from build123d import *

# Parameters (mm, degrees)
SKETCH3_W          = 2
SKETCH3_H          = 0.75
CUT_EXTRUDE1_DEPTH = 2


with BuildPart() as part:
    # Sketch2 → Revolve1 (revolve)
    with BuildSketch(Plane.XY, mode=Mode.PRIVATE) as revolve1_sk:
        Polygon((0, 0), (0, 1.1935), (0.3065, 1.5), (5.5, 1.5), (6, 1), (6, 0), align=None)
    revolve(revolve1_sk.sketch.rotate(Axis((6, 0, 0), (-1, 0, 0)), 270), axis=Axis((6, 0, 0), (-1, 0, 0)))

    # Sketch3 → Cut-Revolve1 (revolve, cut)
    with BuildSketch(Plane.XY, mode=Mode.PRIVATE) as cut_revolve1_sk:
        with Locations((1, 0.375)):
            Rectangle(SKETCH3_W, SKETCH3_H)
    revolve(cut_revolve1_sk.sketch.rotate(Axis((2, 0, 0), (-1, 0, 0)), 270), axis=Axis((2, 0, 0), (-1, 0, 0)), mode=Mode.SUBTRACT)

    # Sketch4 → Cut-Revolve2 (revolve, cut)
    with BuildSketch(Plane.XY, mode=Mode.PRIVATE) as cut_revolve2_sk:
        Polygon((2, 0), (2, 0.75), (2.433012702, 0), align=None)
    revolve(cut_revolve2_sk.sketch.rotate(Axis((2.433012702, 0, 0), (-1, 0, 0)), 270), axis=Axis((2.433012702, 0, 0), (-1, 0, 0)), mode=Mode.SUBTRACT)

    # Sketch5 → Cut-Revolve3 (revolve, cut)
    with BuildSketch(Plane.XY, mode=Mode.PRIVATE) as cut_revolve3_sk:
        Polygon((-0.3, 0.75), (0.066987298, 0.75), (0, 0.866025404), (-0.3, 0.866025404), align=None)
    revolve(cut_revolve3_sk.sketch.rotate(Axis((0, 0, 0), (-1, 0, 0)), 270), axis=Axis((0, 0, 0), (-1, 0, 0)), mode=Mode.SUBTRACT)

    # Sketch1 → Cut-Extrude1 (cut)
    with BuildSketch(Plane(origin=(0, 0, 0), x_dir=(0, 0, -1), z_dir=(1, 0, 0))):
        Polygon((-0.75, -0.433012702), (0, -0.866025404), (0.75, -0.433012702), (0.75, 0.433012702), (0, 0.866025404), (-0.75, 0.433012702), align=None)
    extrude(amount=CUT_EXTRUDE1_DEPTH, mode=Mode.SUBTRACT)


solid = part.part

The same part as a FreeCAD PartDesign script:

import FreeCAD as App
import Part
import Sketcher
Q = App.Units.Quantity

doc = App.newDocument("Part")
body = doc.addObject("PartDesign::Body", "Body")

sketch1 = body.newObject("Sketcher::SketchObject", "Sketch")
sketch1.AttachmentSupport = (doc.getObject("XY_Plane"), [""])
sketch1.MapMode = "FlatFace"
sketch1.addGeometry(Part.LineSegment(App.Vector(0, 1.19, 0), App.Vector(0, 0, 0)), False)
sketch1.addGeometry(Part.LineSegment(App.Vector(0, 0, 0), App.Vector(6, 0, 0)), False)
sketch1.addGeometry(Part.LineSegment(App.Vector(6, 0, 0), App.Vector(6, 1, 0)), False)
sketch1.addGeometry(Part.LineSegment(App.Vector(6, 1, 0), App.Vector(5.5, 1.5, 0)), False)
sketch1.addGeometry(Part.LineSegment(App.Vector(5.5, 1.5, 0), App.Vector(0.31, 1.5, 0)), False)
sketch1.addGeometry(Part.LineSegment(App.Vector(0.31, 1.5, 0), App.Vector(0, 1.19, 0)), False)
sketch1.addConstraint(Sketcher.Constraint("Coincident", 0, 2, 1, 1))
sketch1.addConstraint(Sketcher.Constraint("Coincident", 1, 2, 2, 1))
sketch1.addConstraint(Sketcher.Constraint("Coincident", 2, 2, 3, 1))
sketch1.addConstraint(Sketcher.Constraint("Coincident", 3, 2, 4, 1))
sketch1.addConstraint(Sketcher.Constraint("Coincident", 4, 2, 5, 1))
sketch1.addConstraint(Sketcher.Constraint("Coincident", 5, 2, 0, 1))
sketch1.addConstraint(Sketcher.Constraint("Vertical", 0))
sketch1.addConstraint(Sketcher.Constraint("Horizontal", 1))
sketch1.addConstraint(Sketcher.Constraint("Vertical", 2))
sketch1.addConstraint(Sketcher.Constraint("Horizontal", 4))
sketch1.addConstraint(Sketcher.Constraint("Coincident", 0, 2, -1, 1))
sketch1.addConstraint(Sketcher.Constraint("Perpendicular", 3, 5))
sketch1.addConstraint(Sketcher.Constraint("DistanceX", 1, 1, 1, 2, Q("6 mm")))
sketch1.addConstraint(Sketcher.Constraint("DistanceY", 2, 1, 2, 2, Q("1 mm")))
sketch1.addConstraint(Sketcher.Constraint("Angle", 3, Q("135 deg")))
sketch1.addConstraint(Sketcher.Constraint("DistanceX", -1, 1, 3, 2, Q("5.5 mm")))
sketch1.addConstraint(Sketcher.Constraint("DistanceX", 4, 2, 4, 1, Q("5.1935 mm")))
revolution = body.newObject("PartDesign::Revolution", "Revolution")
revolution.Profile = sketch1
revolution.ReferenceAxis = (sketch1, ["H_Axis"])
revolution.Angle = 360

sketch2 = body.newObject("Sketcher::SketchObject", "Sketch001")
sketch2.AttachmentSupport = (doc.getObject("XY_Plane"), [""])
sketch2.MapMode = "FlatFace"
sketch2.addGeometry(Part.LineSegment(App.Vector(0, 0.8, 0), App.Vector(0, 0, 0)), False)
sketch2.addGeometry(Part.LineSegment(App.Vector(0, 0, 0), App.Vector(2, 0, 0)), False)
sketch2.addGeometry(Part.LineSegment(App.Vector(2, 0, 0), App.Vector(2, 0.8, 0)), False)
sketch2.addGeometry(Part.LineSegment(App.Vector(2, 0.8, 0), App.Vector(0, 0.8, 0)), False)
sketch2.addConstraint(Sketcher.Constraint("Coincident", 0, 2, 1, 1))
sketch2.addConstraint(Sketcher.Constraint("Coincident", 1, 2, 2, 1))
sketch2.addConstraint(Sketcher.Constraint("Coincident", 2, 2, 3, 1))
sketch2.addConstraint(Sketcher.Constraint("Coincident", 3, 2, 0, 1))
sketch2.addConstraint(Sketcher.Constraint("Vertical", 0))
sketch2.addConstraint(Sketcher.Constraint("Horizontal", 1))
sketch2.addConstraint(Sketcher.Constraint("Vertical", 2))
sketch2.addConstraint(Sketcher.Constraint("Horizontal", 3))
sketch2.addConstraint(Sketcher.Constraint("Coincident", 0, 2, -1, 1))
sketch2.addConstraint(Sketcher.Constraint("DistanceX", 1, 1, 1, 2, Q("2 mm")))
sketch2.addConstraint(Sketcher.Constraint("DistanceY", 0, 2, 0, 1, Q("0.75 mm")))
groove = body.newObject("PartDesign::Groove", "Groove")
groove.Profile = sketch2
groove.ReferenceAxis = (sketch2, ["H_Axis"])
groove.Angle = 360

sketch3 = body.newObject("Sketcher::SketchObject", "Sketch002")
sketch3.AttachmentSupport = (doc.getObject("XY_Plane"), [""])
sketch3.MapMode = "FlatFace"
sketch3.addGeometry(Part.LineSegment(App.Vector(2, 0.75, 0), App.Vector(2, 0, 0)), False)
sketch3.addGeometry(Part.LineSegment(App.Vector(2, 0, 0), App.Vector(2.43, 0, 0)), False)
sketch3.addGeometry(Part.LineSegment(App.Vector(2.43, 0, 0), App.Vector(2, 0.75, 0)), False)
sketch3.addConstraint(Sketcher.Constraint("Coincident", 0, 2, 1, 1))
sketch3.addConstraint(Sketcher.Constraint("Coincident", 1, 2, 2, 1))
sketch3.addConstraint(Sketcher.Constraint("Coincident", 2, 2, 0, 1))
sketch3.addConstraint(Sketcher.Constraint("Vertical", 0))
sketch3.addConstraint(Sketcher.Constraint("Horizontal", 1))
sketch3.addConstraint(Sketcher.Constraint("PointOnObject", 0, 2, -1))
sketch3.addConstraint(Sketcher.Constraint("Angle", 2, Q("120 deg")))
sketch3.addConstraint(Sketcher.Constraint("DistanceX", -1, 1, 0, 2, Q("2 mm")))
sketch3.addConstraint(Sketcher.Constraint("DistanceY", 0, 2, 0, 1, Q("0.75 mm")))
groove2 = body.newObject("PartDesign::Groove", "Groove001")
groove2.Profile = sketch3
groove2.ReferenceAxis = (sketch3, ["H_Axis"])
groove2.Angle = 360

sketch4 = body.newObject("Sketcher::SketchObject", "Sketch003")
sketch4.AttachmentSupport = (doc.getObject("XY_Plane"), [""])
sketch4.MapMode = "FlatFace"
sketch4.addGeometry(Part.LineSegment(App.Vector(-0.3, 0.75, 0), App.Vector(0.07, 0.75, 0)), False)
sketch4.addGeometry(Part.LineSegment(App.Vector(0.07, 0.75, 0), App.Vector(0, 0.87, 0)), False)
sketch4.addGeometry(Part.LineSegment(App.Vector(0, 0.87, 0), App.Vector(-0.3, 0.87, 0)), False)
sketch4.addGeometry(Part.LineSegment(App.Vector(-0.3, 0.87, 0), App.Vector(-0.3, 0.75, 0)), False)
sketch4.addConstraint(Sketcher.Constraint("Coincident", 0, 2, 1, 1))
sketch4.addConstraint(Sketcher.Constraint("Coincident", 1, 2, 2, 1))
sketch4.addConstraint(Sketcher.Constraint("Coincident", 2, 2, 3, 1))
sketch4.addConstraint(Sketcher.Constraint("Coincident", 3, 2, 0, 1))
sketch4.addConstraint(Sketcher.Constraint("Horizontal", 0))
sketch4.addConstraint(Sketcher.Constraint("Horizontal", 2))
sketch4.addConstraint(Sketcher.Constraint("Vertical", 3))
sketch4.addConstraint(Sketcher.Constraint("PointOnObject", 1, 2, -2))
sketch4.addConstraint(Sketcher.Constraint("Angle", 1, Q("120 deg")))
sketch4.addConstraint(Sketcher.Constraint("DistanceX", 2, 2, 2, 1, Q("0.3 mm")))
sketch4.addConstraint(Sketcher.Constraint("DistanceY", -1, 1, 0, 2, Q("0.75 mm")))
sketch4.addConstraint(Sketcher.Constraint("DistanceX", 0, 1, 0, 2, Q("0.366987 mm")))
groove3 = body.newObject("PartDesign::Groove", "Groove002")
groove3.Profile = sketch4
groove3.ReferenceAxis = (sketch4, ["H_Axis"])
groove3.Angle = 360

sketch5 = body.newObject("Sketcher::SketchObject", "Sketch004")
sketch5.AttachmentSupport = (doc.getObject("YZ_Plane"), [""])
sketch5.MapMode = "FlatFace"
sketch5.addGeometry(Part.LineSegment(App.Vector(-0.4, 0.8, 0), App.Vector(-0.9, 0, 0)), False)
sketch5.addGeometry(Part.LineSegment(App.Vector(-0.9, 0, 0), App.Vector(-0.4, -0.8, 0)), False)
sketch5.addGeometry(Part.LineSegment(App.Vector(-0.4, -0.8, 0), App.Vector(0.4, -0.8, 0)), False)
sketch5.addGeometry(Part.LineSegment(App.Vector(0.4, -0.8, 0), App.Vector(0.9, 0, 0)), False)
sketch5.addGeometry(Part.LineSegment(App.Vector(0.9, 0, 0), App.Vector(0.4, 0.8, 0)), False)
sketch5.addGeometry(Part.LineSegment(App.Vector(0.4, 0.8, 0), App.Vector(-0.4, 0.8, 0)), False)
sketch5.addConstraint(Sketcher.Constraint("Coincident", 0, 2, 1, 1))
sketch5.addConstraint(Sketcher.Constraint("Coincident", 1, 2, 2, 1))
sketch5.addConstraint(Sketcher.Constraint("Coincident", 2, 2, 3, 1))
sketch5.addConstraint(Sketcher.Constraint("Coincident", 3, 2, 4, 1))
sketch5.addConstraint(Sketcher.Constraint("Coincident", 4, 2, 5, 1))
sketch5.addConstraint(Sketcher.Constraint("Coincident", 5, 2, 0, 1))
sketch5.addConstraint(Sketcher.Constraint("Horizontal", 2))
sketch5.addConstraint(Sketcher.Constraint("Horizontal", 5))
sketch5.addConstraint(Sketcher.Constraint("Symmetric", 0, 2, 3, 2, -1, 1))
sketch5.addConstraint(Sketcher.Constraint("Symmetric", 1, 2, 4, 2, -1, 1))
sketch5.addConstraint(Sketcher.Constraint("PointOnObject", 0, 2, -1))
sketch5.addConstraint(Sketcher.Constraint("Parallel", 0, 3))
sketch5.addConstraint(Sketcher.Constraint("Vertical", 2, 2, 4, 2))
sketch5.addConstraint(Sketcher.Constraint("Angle", 0, Q("-120 deg")))
sketch5.addConstraint(Sketcher.Constraint("DistanceY", 2, 2, 4, 2, Q("1.5 mm")))
sketch5.addConstraint(Sketcher.Constraint("DistanceX", 2, 1, 2, 2, Q("0.866025 mm")))
pocket1 = body.newObject("PartDesign::Pocket", "Pocket")
pocket1.Profile = sketch5
pocket1.Length = 2
pocket1.Reversed = True

doc.recompute()
